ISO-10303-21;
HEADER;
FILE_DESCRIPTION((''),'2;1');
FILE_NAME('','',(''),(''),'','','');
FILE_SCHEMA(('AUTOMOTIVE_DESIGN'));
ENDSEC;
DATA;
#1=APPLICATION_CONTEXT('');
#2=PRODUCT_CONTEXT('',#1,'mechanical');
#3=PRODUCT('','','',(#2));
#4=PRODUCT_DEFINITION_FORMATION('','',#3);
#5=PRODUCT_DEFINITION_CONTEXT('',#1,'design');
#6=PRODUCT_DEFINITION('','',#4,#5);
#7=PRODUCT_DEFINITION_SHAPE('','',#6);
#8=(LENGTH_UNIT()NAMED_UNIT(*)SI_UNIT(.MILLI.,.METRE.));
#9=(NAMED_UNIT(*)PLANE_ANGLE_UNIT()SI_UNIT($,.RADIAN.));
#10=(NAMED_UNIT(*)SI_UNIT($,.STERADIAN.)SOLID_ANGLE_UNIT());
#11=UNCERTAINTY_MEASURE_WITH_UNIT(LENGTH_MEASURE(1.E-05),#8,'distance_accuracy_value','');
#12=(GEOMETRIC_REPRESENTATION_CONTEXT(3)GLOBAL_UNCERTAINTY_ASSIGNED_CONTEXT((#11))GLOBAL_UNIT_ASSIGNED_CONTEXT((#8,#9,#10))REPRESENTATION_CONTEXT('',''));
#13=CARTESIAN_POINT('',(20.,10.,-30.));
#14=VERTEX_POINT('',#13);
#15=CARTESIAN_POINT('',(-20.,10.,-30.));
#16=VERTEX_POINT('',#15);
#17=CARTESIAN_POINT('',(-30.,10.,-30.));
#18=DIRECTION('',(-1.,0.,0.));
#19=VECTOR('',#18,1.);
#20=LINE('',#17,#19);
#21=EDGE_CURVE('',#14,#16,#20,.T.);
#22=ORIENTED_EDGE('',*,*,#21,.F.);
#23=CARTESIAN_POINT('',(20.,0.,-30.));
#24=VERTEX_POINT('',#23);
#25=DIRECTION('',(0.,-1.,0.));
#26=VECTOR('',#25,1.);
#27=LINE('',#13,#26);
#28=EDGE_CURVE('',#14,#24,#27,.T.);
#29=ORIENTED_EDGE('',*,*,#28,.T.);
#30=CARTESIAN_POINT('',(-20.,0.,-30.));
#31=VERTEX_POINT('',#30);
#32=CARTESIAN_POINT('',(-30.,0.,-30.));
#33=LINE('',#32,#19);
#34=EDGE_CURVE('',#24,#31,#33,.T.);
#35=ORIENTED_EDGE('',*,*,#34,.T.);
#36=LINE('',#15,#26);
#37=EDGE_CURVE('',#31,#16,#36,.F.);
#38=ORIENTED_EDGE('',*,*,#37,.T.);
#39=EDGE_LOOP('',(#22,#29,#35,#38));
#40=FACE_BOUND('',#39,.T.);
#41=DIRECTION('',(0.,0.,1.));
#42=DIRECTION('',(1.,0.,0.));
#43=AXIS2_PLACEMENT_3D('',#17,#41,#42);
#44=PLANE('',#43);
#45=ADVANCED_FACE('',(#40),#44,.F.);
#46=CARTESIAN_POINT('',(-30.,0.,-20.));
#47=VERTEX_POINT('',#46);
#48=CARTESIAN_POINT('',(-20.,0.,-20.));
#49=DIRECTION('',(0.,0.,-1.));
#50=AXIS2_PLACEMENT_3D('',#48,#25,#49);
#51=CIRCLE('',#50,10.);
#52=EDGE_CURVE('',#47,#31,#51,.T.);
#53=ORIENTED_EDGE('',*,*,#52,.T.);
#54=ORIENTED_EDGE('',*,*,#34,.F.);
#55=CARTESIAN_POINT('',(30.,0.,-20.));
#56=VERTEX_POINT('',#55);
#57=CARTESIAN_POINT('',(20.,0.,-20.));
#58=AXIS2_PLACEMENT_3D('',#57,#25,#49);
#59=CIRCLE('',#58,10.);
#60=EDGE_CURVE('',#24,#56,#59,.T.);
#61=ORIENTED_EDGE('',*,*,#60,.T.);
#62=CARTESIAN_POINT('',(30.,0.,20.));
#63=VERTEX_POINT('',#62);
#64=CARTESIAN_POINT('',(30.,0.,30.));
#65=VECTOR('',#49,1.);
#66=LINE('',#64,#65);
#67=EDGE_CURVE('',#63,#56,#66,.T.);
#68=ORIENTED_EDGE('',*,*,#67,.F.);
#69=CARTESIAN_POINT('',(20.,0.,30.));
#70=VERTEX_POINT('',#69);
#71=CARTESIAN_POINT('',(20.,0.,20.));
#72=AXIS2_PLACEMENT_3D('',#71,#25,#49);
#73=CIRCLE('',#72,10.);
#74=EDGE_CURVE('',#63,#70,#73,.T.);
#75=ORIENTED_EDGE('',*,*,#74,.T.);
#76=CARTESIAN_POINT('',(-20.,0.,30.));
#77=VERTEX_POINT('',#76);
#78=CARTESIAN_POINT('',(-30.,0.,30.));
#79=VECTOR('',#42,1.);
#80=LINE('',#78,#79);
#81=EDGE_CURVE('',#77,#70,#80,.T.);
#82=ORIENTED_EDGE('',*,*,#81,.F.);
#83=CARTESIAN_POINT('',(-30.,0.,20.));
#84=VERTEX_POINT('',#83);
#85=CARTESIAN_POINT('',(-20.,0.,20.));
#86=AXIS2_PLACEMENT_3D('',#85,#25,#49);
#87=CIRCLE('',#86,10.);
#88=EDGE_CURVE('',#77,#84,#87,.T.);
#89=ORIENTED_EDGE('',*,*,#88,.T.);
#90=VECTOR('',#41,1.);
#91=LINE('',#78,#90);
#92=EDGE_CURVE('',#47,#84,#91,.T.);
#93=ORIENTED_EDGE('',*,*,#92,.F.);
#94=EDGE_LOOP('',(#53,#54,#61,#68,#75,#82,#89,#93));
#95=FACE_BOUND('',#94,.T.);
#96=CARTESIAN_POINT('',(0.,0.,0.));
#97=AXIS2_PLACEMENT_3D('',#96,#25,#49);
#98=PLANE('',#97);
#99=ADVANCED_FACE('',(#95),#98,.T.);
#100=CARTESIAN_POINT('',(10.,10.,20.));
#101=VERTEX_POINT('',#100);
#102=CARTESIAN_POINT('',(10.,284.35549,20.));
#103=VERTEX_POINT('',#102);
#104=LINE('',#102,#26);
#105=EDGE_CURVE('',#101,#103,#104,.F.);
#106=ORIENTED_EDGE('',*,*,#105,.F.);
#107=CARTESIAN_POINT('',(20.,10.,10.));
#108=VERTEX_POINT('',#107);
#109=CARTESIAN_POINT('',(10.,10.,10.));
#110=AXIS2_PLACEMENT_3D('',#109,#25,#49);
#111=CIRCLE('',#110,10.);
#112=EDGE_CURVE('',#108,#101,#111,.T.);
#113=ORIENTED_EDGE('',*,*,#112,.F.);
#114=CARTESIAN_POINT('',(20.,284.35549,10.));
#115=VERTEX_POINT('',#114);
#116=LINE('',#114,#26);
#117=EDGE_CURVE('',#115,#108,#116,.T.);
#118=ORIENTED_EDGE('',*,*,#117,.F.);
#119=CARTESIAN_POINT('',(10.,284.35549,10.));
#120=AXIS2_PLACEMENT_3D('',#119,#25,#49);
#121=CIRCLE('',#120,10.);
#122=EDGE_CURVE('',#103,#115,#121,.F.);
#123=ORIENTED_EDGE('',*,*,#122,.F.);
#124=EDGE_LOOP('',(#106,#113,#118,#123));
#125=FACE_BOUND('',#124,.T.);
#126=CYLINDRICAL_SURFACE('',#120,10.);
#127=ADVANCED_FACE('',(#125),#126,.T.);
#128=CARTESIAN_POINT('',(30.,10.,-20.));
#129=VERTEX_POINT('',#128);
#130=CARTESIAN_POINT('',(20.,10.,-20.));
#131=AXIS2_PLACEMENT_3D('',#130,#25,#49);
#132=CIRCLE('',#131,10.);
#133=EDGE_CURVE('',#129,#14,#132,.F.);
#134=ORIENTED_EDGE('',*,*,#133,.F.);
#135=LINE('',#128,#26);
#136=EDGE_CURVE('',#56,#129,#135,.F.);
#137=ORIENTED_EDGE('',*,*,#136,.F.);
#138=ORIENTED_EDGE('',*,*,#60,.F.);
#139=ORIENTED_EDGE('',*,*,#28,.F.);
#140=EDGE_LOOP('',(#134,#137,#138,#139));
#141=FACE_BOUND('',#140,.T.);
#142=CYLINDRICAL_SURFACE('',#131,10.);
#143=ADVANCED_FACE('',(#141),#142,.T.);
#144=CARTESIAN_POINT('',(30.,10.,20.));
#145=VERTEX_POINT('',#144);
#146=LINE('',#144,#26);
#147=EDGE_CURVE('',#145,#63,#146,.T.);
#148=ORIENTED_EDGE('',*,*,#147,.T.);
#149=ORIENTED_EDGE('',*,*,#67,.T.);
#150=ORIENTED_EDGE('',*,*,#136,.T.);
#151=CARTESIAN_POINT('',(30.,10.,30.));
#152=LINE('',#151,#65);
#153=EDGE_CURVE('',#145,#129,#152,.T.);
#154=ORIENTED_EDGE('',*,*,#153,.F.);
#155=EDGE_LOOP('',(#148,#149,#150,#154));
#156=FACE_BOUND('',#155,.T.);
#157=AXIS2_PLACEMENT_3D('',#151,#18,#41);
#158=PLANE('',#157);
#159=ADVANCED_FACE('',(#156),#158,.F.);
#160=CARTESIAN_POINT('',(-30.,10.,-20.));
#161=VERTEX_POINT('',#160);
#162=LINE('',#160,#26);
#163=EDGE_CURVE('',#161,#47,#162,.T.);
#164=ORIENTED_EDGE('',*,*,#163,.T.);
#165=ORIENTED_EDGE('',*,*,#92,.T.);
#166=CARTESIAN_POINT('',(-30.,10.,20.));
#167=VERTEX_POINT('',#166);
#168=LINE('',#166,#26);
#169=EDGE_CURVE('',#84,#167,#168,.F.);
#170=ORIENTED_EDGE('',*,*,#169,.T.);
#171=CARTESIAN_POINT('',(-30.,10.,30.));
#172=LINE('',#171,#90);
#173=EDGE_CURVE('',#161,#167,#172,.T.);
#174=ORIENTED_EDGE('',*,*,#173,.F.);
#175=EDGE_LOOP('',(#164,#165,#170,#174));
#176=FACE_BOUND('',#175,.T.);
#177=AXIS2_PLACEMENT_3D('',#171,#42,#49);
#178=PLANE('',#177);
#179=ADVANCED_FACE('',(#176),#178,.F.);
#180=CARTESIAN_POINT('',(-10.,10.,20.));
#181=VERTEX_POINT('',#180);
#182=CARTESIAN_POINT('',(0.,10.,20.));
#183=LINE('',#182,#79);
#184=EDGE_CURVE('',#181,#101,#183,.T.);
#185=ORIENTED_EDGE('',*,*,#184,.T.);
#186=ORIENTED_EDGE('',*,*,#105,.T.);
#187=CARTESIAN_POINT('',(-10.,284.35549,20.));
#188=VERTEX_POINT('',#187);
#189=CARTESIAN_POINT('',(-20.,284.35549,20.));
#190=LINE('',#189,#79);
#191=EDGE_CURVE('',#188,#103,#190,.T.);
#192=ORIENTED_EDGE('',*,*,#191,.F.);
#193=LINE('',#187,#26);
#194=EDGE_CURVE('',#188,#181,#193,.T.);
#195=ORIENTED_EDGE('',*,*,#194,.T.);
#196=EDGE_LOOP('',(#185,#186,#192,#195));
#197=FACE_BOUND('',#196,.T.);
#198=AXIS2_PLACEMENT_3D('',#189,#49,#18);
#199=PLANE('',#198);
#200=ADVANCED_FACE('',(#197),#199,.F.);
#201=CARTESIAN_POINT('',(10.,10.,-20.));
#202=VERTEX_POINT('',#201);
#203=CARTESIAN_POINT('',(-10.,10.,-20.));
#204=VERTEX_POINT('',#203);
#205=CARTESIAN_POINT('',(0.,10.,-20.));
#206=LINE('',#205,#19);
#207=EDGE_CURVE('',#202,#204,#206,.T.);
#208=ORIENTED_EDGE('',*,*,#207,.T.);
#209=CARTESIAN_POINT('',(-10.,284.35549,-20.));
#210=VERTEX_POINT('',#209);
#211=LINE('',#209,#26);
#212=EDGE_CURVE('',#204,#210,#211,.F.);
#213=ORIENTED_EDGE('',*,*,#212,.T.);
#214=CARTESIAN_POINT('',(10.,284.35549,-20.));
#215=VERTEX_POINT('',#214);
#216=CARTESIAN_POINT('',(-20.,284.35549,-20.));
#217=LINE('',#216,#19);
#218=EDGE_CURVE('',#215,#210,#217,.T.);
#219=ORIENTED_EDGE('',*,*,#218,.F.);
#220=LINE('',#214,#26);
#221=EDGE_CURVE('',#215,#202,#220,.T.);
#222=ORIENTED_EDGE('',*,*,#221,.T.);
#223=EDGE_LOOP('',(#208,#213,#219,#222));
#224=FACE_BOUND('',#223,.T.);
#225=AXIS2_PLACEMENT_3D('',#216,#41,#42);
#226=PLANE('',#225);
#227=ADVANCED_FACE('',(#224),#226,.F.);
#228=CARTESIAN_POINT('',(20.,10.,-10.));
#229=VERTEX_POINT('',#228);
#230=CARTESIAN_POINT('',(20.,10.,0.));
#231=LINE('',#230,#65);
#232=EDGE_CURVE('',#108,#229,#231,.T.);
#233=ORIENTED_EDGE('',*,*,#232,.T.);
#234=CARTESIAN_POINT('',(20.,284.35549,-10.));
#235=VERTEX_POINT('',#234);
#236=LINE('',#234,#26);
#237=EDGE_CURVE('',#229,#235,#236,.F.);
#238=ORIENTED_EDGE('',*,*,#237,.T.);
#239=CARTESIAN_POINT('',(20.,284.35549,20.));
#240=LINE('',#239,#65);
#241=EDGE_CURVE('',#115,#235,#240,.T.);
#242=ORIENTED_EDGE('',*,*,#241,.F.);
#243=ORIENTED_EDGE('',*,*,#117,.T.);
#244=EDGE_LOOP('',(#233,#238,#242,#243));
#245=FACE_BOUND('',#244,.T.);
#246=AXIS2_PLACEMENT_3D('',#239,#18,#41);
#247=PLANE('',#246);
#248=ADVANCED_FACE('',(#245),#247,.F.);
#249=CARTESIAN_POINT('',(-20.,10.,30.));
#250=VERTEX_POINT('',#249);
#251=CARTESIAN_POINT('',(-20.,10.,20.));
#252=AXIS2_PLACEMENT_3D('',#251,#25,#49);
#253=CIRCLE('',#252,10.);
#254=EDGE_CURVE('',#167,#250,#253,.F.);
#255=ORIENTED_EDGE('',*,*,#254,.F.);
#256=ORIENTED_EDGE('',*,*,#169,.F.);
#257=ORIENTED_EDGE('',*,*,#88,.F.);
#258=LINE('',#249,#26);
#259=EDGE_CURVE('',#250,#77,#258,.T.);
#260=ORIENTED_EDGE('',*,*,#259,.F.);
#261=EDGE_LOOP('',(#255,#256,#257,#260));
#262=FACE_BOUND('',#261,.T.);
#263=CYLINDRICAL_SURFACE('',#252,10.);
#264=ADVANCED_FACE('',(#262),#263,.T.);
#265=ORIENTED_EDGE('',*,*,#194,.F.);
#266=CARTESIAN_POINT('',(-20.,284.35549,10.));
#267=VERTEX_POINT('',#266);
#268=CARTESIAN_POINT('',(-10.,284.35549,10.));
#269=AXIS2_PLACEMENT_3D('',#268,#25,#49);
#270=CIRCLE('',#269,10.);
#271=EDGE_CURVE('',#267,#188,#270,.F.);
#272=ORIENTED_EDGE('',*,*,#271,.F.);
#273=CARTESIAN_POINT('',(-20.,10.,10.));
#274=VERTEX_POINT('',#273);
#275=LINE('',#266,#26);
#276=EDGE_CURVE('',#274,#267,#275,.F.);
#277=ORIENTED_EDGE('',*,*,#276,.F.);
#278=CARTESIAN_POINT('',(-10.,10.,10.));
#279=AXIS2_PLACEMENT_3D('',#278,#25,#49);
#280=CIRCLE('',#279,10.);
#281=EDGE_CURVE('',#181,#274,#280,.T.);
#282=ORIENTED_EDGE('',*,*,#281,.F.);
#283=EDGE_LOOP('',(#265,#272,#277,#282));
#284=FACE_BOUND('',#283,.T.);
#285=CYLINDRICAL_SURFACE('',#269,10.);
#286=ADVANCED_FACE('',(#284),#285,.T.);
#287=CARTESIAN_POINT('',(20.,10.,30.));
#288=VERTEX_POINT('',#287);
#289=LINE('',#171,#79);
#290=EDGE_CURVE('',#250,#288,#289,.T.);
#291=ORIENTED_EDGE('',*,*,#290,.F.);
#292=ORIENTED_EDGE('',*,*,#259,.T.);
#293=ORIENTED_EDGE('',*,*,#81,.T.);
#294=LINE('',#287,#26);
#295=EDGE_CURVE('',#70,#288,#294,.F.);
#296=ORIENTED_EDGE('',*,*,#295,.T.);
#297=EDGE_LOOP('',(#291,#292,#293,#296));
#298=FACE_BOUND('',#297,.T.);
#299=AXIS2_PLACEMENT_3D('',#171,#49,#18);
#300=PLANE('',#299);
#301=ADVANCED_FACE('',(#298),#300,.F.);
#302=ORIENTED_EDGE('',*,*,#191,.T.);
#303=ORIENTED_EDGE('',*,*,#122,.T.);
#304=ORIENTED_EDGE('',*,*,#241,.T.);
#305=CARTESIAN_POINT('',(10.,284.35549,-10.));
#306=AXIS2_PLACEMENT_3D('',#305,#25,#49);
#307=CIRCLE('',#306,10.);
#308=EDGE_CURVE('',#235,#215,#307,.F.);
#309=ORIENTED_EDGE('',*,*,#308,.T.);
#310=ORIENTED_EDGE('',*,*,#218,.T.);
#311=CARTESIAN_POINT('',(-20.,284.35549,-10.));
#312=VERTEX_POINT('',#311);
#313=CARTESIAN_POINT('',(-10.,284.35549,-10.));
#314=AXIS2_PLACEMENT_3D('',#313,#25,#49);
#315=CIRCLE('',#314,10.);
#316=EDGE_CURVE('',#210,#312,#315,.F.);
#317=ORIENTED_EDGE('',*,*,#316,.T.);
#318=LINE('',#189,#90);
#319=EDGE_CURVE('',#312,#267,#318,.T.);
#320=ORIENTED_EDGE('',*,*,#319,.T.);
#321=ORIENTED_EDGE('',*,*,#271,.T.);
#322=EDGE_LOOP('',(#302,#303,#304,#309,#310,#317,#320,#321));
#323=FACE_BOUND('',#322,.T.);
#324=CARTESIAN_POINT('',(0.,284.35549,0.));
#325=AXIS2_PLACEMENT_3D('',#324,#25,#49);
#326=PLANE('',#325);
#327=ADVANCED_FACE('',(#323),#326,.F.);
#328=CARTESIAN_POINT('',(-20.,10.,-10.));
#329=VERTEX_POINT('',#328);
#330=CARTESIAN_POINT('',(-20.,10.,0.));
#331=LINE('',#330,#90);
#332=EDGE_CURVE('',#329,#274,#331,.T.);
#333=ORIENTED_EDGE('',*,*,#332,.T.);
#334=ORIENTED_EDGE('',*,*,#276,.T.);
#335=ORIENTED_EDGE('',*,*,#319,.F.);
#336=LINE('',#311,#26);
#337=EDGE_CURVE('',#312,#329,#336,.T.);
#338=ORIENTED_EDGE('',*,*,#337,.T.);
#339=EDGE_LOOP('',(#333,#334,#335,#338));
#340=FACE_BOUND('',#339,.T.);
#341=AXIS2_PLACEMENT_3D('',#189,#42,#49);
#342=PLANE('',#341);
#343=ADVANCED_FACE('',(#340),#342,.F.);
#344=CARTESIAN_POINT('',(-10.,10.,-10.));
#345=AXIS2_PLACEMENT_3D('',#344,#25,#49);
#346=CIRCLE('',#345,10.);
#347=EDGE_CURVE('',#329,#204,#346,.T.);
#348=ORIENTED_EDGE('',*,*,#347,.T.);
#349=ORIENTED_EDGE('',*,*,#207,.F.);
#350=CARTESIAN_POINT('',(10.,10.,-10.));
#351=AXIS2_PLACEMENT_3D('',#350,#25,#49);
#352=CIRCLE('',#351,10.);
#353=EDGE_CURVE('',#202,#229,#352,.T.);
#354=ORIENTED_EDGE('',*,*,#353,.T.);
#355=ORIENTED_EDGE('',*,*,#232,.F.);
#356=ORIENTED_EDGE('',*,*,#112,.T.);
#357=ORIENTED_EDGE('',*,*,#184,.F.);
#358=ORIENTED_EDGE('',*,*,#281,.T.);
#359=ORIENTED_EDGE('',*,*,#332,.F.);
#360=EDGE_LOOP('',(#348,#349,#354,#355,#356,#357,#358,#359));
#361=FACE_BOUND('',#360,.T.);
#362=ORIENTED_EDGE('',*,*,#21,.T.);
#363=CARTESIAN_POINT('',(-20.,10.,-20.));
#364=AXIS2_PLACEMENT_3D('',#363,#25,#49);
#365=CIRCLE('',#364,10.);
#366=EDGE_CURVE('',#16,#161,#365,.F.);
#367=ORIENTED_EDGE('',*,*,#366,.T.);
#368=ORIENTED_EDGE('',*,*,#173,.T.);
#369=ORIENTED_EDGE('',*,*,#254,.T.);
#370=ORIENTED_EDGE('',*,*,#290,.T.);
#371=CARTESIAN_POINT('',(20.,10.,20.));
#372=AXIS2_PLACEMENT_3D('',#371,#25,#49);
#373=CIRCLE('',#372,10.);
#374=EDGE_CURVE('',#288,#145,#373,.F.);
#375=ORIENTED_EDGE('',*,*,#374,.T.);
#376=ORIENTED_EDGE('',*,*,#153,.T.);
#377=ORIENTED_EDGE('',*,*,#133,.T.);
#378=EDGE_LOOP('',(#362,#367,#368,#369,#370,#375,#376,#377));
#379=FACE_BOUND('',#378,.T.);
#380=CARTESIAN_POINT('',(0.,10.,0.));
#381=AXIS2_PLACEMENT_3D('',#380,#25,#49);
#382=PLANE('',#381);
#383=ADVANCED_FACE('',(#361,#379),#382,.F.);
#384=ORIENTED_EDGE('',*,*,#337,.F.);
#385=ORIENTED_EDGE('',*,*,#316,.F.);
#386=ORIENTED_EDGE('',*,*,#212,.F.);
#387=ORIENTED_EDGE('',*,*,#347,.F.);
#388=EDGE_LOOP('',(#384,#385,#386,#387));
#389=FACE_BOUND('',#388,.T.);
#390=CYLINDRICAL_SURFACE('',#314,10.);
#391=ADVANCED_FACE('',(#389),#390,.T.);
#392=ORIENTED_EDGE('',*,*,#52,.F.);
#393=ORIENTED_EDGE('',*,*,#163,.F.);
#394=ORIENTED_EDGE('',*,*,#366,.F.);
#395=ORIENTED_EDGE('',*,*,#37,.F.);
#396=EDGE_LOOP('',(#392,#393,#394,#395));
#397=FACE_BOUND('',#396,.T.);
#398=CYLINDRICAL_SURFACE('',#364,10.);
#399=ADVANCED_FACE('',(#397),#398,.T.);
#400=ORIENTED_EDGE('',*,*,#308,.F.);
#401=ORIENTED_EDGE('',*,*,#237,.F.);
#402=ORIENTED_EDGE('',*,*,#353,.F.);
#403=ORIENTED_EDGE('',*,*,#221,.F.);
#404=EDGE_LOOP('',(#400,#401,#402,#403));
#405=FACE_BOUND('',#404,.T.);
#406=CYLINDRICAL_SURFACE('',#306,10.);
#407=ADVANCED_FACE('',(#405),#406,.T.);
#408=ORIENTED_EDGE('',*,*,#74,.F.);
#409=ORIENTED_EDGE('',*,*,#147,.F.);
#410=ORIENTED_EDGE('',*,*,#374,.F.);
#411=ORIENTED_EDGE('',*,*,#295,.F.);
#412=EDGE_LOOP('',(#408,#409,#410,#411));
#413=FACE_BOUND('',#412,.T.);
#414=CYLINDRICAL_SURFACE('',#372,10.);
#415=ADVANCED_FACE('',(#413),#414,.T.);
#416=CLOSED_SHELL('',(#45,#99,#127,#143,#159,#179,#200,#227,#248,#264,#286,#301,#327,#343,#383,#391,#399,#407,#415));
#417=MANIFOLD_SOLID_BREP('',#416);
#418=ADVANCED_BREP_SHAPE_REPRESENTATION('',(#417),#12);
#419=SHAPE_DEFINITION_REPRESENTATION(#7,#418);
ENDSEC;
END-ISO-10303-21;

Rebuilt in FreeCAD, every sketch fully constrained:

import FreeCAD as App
import Part
import Sketcher


def edges_at(feature, points):
    """Names of the edges that pass closest to the given points."""
    edges = feature.Shape.Edges
    near = lambda p: min(range(len(edges)), key=lambda i: edges[i].distToShape(Part.Vertex(*p))[0])
    return sorted({f"Edge{near(p) + 1}" for p in points})

doc = App.newDocument("Part")
body = doc.addObject("PartDesign::Body", "Body")

sketch1 = body.newObject("Sketcher::SketchObject", "Sketch")
sketch1.AttachmentSupport = (doc.getObject("XZ_Plane"), [""])
sketch1.MapMode = "FlatFace"
sketch1.addGeometry([
    Part.LineSegment(App.Vector(-30, -30, 0), App.Vector(-30, 30, 0)),
    Part.LineSegment(App.Vector(-30, 30, 0), App.Vector(30, 30, 0)),
    Part.LineSegment(App.Vector(30, 30, 0), App.Vector(30, -30, 0)),
    Part.LineSegment(App.Vector(30, -30, 0), App.Vector(-30, -30, 0)),
], False)
sketch1.addConstraint([
    Sketcher.Constraint("Coincident", 0, 2, 1, 1),
    Sketcher.Constraint("Coincident", 1, 2, 2, 1),
    Sketcher.Constraint("Coincident", 2, 2, 3, 1),
    Sketcher.Constraint("Coincident", 3, 2, 0, 1),
    Sketcher.Constraint("Vertical", 0),
    Sketcher.Constraint("Horizontal", 1),
    Sketcher.Constraint("Vertical", 2),
    Sketcher.Constraint("Horizontal", 3),
    Sketcher.Constraint("Symmetric", 0, 2, 2, 2, -1, 1),
    Sketcher.Constraint("Equal", 3, 0),
    Sketcher.Constraint("DistanceX", 1, 1, 1, 2, 60.0),
])
pad1 = body.newObject("PartDesign::Pad", "Pad")
pad1.Profile = sketch1
pad1.Length = 10
pad1.Reversed = True

sketch2 = body.newObject("Sketcher::SketchObject", "Sketch001")
sketch2.AttachmentSupport = (doc.getObject("XZ_Plane"), [""])
sketch2.MapMode = "FlatFace"
sketch2.addGeometry([
    Part.LineSegment(App.Vector(-20, -20, 0), App.Vector(-20, 20, 0)),
    Part.LineSegment(App.Vector(-20, 20, 0), App.Vector(20, 20, 0)),
    Part.LineSegment(App.Vector(20, 20, 0), App.Vector(20, -20, 0)),
    Part.LineSegment(App.Vector(20, -20, 0), App.Vector(-20, -20, 0)),
], False)
sketch2.addConstraint([
    Sketcher.Constraint("Coincident", 0, 2, 1, 1),
    Sketcher.Constraint("Coincident", 1, 2, 2, 1),
    Sketcher.Constraint("Coincident", 2, 2, 3, 1),
    Sketcher.Constraint("Coincident", 3, 2, 0, 1),
    Sketcher.Constraint("Vertical", 0),
    Sketcher.Constraint("Horizontal", 1),
    Sketcher.Constraint("Vertical", 2),
    Sketcher.Constraint("Horizontal", 3),
    Sketcher.Constraint("Symmetric", 0, 2, 2, 2, -1, 1),
    Sketcher.Constraint("Equal", 3, 0),
    Sketcher.Constraint("DistanceX", 1, 1, 1, 2, 40.0),
])
pad2 = body.newObject("PartDesign::Pad", "Pad001")
pad2.Profile = sketch2
pad2.Length = 284.35549
pad2.Reversed = True
doc.recompute()

fillet = body.newObject("PartDesign::Fillet", "Fillet")
fillet.Base = (pad2, edges_at(pad2, [
    (20, 147.178, 20),
    (20, 147.178, -20),
    (-20, 147.178, -20),
    (-20, 147.178, 20),
    (30, 5, 30),
    (-30, 5, 30),
    (-30, 5, -30),
    (30, 5, -30),
]))
fillet.Radius = 10

doc.recompute()
